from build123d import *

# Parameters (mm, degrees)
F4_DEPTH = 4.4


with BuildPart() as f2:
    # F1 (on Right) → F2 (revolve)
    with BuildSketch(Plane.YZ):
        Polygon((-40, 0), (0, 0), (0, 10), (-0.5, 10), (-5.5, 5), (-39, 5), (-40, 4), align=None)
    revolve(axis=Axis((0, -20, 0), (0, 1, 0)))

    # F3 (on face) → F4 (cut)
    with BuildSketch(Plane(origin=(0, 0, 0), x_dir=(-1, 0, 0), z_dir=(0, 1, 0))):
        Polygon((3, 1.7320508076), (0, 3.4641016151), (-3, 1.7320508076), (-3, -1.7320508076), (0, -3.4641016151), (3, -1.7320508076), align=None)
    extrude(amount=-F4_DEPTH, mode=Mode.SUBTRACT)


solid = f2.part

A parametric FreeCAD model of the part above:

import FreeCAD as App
import Part
import Sketcher

V = App.Vector
Q = App.Units.Quantity

doc = App.newDocument("Part")
body = doc.addObject("PartDesign::Body", "Body")

# Sketch on YZ plane
sketch1 = doc.addObject("Sketcher::SketchObject", "Sketch")
body.addObject(sketch1)
sketch1.AttachmentSupport = (doc.YZ_Plane, [""])
sketch1.MapMode = "FlatFace"
sketch1.addGeometry([
    Part.LineSegment(V(-40, 0, 0), V(0, 0, 0)),  # 0
    Part.LineSegment(V(0, 0, 0), V(0, 10, 0)),  # 1
    Part.LineSegment(V(0, 10, 0), V(-0.5, 10, 0)),  # 2
    Part.LineSegment(V(-0.5, 10, 0), V(-5.5, 5, 0)),  # 3
    Part.LineSegment(V(-5.5, 5, 0), V(-39, 5, 0)),  # 4
    Part.LineSegment(V(-39, 5, 0), V(-40, 4, 0)),  # 5
    Part.LineSegment(V(-40, 4, 0), V(-40, 0, 0)),  # 6
], False)
sketch1.addConstraint([
    Sketcher.Constraint("Coincident", 0, 2, 1, 1),
    Sketcher.Constraint("Coincident", 1, 2, 2, 1),
    Sketcher.Constraint("Coincident", 2, 2, 3, 1),
    Sketcher.Constraint("Coincident", 3, 2, 4, 1),
    Sketcher.Constraint("Coincident", 4, 2, 5, 1),
    Sketcher.Constraint("Coincident", 5, 2, 6, 1),
    Sketcher.Constraint("Coincident", 6, 2, 0, 1),
    Sketcher.Constraint("Horizontal", 0),
    Sketcher.Constraint("Vertical", 1),
    Sketcher.Constraint("Horizontal", 2),
    Sketcher.Constraint("Horizontal", 4),
    Sketcher.Constraint("Vertical", 6),
    Sketcher.Constraint("Coincident", 0, 2, -1, 1),
    Sketcher.Constraint("Parallel", 3, 5),
    Sketcher.Constraint("DistanceX", 0, 1, 0, 2, 40.0),
    Sketcher.Constraint("DistanceY", 1, 1, 1, 2, 10.0),
    Sketcher.Constraint("DistanceY", 6, 2, 6, 1, 4.0),
    Sketcher.Constraint("Angle", 3, Q("-135 deg")),
    Sketcher.Constraint("DistanceX", 2, 2, 2, 1, 0.5),
    Sketcher.Constraint("DistanceY", -1, 1, 3, 2, 5.0),
])
revolution = doc.addObject("PartDesign::Revolution", "Revolution")
body.addObject(revolution)
revolution.Profile = sketch1
revolution.ReferenceAxis = (sketch1, ["H_Axis"])
revolution.Angle = 360

# Sketch on XZ plane
sketch2 = doc.addObject("Sketcher::SketchObject", "Sketch001")
body.addObject(sketch2)
sketch2.AttachmentSupport = (doc.XZ_Plane, [""])
sketch2.MapMode = "FlatFace"
sketch2.addGeometry([
    Part.LineSegment(V(-3, 1.7, 0), V(0, 3.5, 0)),  # 0
    Part.LineSegment(V(0, 3.5, 0), V(3, 1.7, 0)),  # 1
    Part.LineSegment(V(3, 1.7, 0), V(3, -1.7, 0)),  # 2
    Part.LineSegment(V(3, -1.7, 0), V(0, -3.5, 0)),  # 3
    Part.LineSegment(V(0, -3.5, 0), V(-3, -1.7, 0)),  # 4
    Part.LineSegment(V(-3, -1.7, 0), V(-3, 1.7, 0)),  # 5
], False)
sketch2.addConstraint([
    Sketcher.Constraint("Coincident", 0, 2, 1, 1),
    Sketcher.Constraint("Coincident", 1, 2, 2, 1),
    Sketcher.Constraint("Coincident", 2, 2, 3, 1),
    Sketcher.Constraint("Coincident", 3, 2, 4, 1),
    Sketcher.Constraint("Coincident", 4, 2, 5, 1),
    Sketcher.Constraint("Coincident", 5, 2, 0, 1),
    Sketcher.Constraint("Vertical", 2),
    Sketcher.Constraint("Vertical", 5),
    Sketcher.Constraint("Symmetric", 0, 2, 3, 2, -1, 1),
    Sketcher.Constraint("Symmetric", 1, 2, 4, 2, -1, 1),
    Sketcher.Constraint("PointOnObject", 0, 2, -2),
    Sketcher.Constraint("Parallel", 0, 3),
    Sketcher.Constraint("Horizontal", 2, 2, 4, 2),
    Sketcher.Constraint("Angle", 0, Q("30 deg")),
    Sketcher.Constraint("DistanceX", -1, 1, 1, 2, 3.0),
    Sketcher.Constraint("DistanceY", 2, 2, 2, 1, 3.464102),
])
pocket1 = doc.addObject("PartDesign::Pocket", "Pocket")
body.addObject(pocket1)
pocket1.Profile = sketch2
pocket1.Length = 4.4
pocket1.Reversed = True

doc.recompute()
